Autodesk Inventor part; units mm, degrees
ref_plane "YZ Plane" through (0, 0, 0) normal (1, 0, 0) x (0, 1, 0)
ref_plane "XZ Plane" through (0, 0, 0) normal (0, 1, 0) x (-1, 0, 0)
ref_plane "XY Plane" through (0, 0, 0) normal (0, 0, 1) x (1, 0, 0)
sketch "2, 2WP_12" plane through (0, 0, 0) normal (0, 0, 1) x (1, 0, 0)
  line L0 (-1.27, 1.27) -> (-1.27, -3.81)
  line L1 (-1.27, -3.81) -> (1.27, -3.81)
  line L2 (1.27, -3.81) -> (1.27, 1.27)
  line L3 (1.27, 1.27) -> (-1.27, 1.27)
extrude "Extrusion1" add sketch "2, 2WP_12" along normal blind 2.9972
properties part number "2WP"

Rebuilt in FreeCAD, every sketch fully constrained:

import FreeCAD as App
import Part
import Sketcher

V = App.Vector
Q = App.Units.Quantity

doc = App.newDocument("Part")
body = doc.addObject("PartDesign::Body", "Body")

# Sketch on XY plane
sketch1 = body.newObject("Sketcher::SketchObject", "Sketch")
sketch1.AttachmentSupport = (doc.getObject("XY_Plane"), [""])
sketch1.MapMode = "FlatFace"
sketch1.addGeometry(Part.LineSegment(V(1.3, 1.3, 0), V(-1.3, 1.3, 0)), False)
sketch1.addGeometry(Part.LineSegment(V(-1.3, 1.3, 0), V(-1.3, -3.8, 0)), False)
sketch1.addGeometry(Part.LineSegment(V(-1.3, -3.8, 0), V(1.3, -3.8, 0)), False)
sketch1.addGeometry(Part.LineSegment(V(1.3, -3.8, 0), V(1.3, 1.3, 0)), False)
sketch1.addConstraint(Sketcher.Constraint("Coincident", 0, 2, 1, 1))
sketch1.addConstraint(Sketcher.Constraint("Coincident", 1, 2, 2, 1))
sketch1.addConstraint(Sketcher.Constraint("Coincident", 2, 2, 3, 1))
sketch1.addConstraint(Sketcher.Constraint("Coincident", 3, 2, 0, 1))
sketch1.addConstraint(Sketcher.Constraint("Horizontal", 0))
sketch1.addConstraint(Sketcher.Constraint("Vertical", 1))
sketch1.addConstraint(Sketcher.Constraint("Horizontal", 2))
sketch1.addConstraint(Sketcher.Constraint("Vertical", 3))
sketch1.addConstraint(Sketcher.Constraint("DistanceX", 0, 2, 0, 1, Q("0.1 in")))
sketch1.addConstraint(Sketcher.Constraint("DistanceY", 1, 2, 1, 1, Q("0.2 in")))
sketch1.addConstraint(Sketcher.Constraint("DistanceX", 0, 2, -1, 1, Q("0.05 in")))
sketch1.addConstraint(Sketcher.Constraint("DistanceY", -1, 1, 0, 2, Q("0.05 in")))
pad1 = body.newObject("PartDesign::Pad", "Pad")
pad1.Profile = sketch1
pad1.Length = Q("0.118 in")

doc.recompute()
